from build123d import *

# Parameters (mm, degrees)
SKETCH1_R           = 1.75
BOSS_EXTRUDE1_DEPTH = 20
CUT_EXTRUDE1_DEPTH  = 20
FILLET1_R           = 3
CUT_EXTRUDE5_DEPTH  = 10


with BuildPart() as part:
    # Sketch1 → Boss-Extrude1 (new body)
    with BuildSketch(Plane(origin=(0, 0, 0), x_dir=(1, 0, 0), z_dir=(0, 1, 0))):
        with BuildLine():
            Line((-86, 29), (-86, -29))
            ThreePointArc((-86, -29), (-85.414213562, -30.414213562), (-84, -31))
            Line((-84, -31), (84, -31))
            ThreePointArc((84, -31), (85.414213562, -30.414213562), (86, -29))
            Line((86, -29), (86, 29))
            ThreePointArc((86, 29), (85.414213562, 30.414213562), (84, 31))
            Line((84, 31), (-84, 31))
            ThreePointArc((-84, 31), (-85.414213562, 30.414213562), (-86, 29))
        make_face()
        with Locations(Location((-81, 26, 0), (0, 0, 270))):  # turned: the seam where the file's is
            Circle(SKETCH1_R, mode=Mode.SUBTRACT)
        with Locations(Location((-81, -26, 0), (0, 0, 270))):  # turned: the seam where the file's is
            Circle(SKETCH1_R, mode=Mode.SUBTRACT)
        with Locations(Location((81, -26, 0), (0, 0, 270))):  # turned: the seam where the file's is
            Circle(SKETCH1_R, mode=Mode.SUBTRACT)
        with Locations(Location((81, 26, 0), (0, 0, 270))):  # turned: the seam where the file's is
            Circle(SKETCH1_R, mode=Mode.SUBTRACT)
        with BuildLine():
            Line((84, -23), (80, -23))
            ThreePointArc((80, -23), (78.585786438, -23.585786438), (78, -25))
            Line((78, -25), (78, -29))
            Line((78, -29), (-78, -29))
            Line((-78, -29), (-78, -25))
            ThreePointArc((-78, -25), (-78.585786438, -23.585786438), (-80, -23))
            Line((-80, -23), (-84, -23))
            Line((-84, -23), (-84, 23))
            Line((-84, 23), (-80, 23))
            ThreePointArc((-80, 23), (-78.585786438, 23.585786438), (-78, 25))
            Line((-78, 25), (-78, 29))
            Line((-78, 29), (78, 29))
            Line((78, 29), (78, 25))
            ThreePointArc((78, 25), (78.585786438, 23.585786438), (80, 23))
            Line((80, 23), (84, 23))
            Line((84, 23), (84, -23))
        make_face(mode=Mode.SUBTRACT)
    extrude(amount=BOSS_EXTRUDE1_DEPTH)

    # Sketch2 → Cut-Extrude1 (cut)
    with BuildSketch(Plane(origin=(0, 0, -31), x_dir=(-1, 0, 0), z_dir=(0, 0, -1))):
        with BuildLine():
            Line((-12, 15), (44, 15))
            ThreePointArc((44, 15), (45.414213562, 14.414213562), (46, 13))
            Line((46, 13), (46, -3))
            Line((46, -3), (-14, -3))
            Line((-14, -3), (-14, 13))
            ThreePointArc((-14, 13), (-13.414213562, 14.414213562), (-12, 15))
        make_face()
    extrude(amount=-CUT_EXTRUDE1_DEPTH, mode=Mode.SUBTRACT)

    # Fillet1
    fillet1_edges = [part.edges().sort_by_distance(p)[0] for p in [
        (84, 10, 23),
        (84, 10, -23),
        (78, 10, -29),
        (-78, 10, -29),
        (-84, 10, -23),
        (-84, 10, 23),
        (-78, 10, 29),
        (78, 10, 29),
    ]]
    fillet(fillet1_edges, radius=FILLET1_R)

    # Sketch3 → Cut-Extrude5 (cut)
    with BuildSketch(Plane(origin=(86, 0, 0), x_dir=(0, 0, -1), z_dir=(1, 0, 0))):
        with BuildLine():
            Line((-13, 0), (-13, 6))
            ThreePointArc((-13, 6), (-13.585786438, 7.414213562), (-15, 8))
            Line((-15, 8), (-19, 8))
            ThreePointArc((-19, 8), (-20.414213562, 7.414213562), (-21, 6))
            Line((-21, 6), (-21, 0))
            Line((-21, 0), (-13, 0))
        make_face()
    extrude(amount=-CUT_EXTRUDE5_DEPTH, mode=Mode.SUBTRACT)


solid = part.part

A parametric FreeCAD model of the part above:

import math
import FreeCAD as App
import Part
import Sketcher

V = App.Vector


def edges_at(feature, points):
    """Names of the edges that pass closest to the given points."""
    edges = feature.Shape.Edges
    near = lambda p: min(range(len(edges)), key=lambda i: edges[i].distToShape(Part.Vertex(*p))[0])
    return sorted({f"Edge{near(p) + 1}" for p in points})

doc = App.newDocument("Part")
body = doc.addObject("PartDesign::Body", "Body")

sketch1 = body.newObject("Sketcher::SketchObject", "Sketch")
sketch1.AttachmentSupport = (doc.getObject("XZ_Plane"), [""])
sketch1.MapMode = "FlatFace"
sketch1.addGeometry([
    Part.LineSegment(V(-86, -29, 0), V(-86, 29, 0)),
    Part.ArcOfCircle(Part.Circle(V(-84, 29, 0), V(0, 0, 1), 2), math.radians(90), math.radians(180)),
    Part.LineSegment(V(-84, 31, 0), V(84, 31, 0)),
    Part.ArcOfCircle(Part.Circle(V(84, 29, 0), V(0, 0, 1), 2), math.radians(0), math.radians(90)),
    Part.LineSegment(V(86, 29, 0), V(86, -29, 0)),
    Part.ArcOfCircle(Part.Circle(V(84, -29, 0), V(0, 0, 1), 2), math.radians(-90), math.radians(0)),
    Part.LineSegment(V(84, -31, 0), V(-84, -31, 0)),
    Part.ArcOfCircle(Part.Circle(V(-84, -29, 0), V(0, 0, 1), 2), math.radians(-180), math.radians(-90)),
    Part.Circle(V(-81, 26, 0), V(0, 0, 1), 1.8),
    Part.Circle(V(81, 26, 0), V(0, 0, 1), 1.8),
    Part.Circle(V(-81, -26, 0), V(0, 0, 1), 1.8),
    Part.LineSegment(V(84, -23, 0), V(84, 23, 0)),
    Part.LineSegment(V(84, 23, 0), V(80, 23, 0)),
    Part.ArcOfCircle(Part.Circle(V(80, 25, 0), V(0, 0, 1), 2), math.radians(-180), math.radians(-90)),
    Part.LineSegment(V(78, 25, 0), V(78, 29, 0)),
    Part.LineSegment(V(78, 29, 0), V(-78, 29, 0)),
    Part.LineSegment(V(-78, 29, 0), V(-78, 25, 0)),
    Part.ArcOfCircle(Part.Circle(V(-80, 25, 0), V(0, 0, 1), 2), math.radians(-90), math.radians(0)),
    Part.LineSegment(V(-80, 23, 0), V(-84, 23, 0)),
    Part.LineSegment(V(-84, 23, 0), V(-84, -23, 0)),
    Part.LineSegment(V(-84, -23, 0), V(-80, -23, 0)),
    Part.ArcOfCircle(Part.Circle(V(-80, -25, 0), V(0, 0, 1), 2), math.radians(0), math.radians(90)),
    Part.LineSegment(V(-78, -25, 0), V(-78, -29, 0)),
    Part.LineSegment(V(-78, -29, 0), V(78, -29, 0)),
    Part.LineSegment(V(78, -29, 0), V(78, -25, 0)),
    Part.ArcOfCircle(Part.Circle(V(80, -25, 0), V(0, 0, 1), 2), math.radians(90), math.radians(180)),
    Part.LineSegment(V(80, -23, 0), V(84, -23, 0)),
    Part.Circle(V(81, -26, 0), V(0, 0, 1), 1.8),
], False)
sketch1.addConstraint([
    Sketcher.Constraint("Tangent", 0, 2, 1, 2),
    Sketcher.Constraint("Tangent", 1, 1, 2, 1),
    Sketcher.Constraint("Tangent", 2, 2, 3, 2),
    Sketcher.Constraint("Tangent", 3, 1, 4, 1),
    Sketcher.Constraint("Tangent", 4, 2, 5, 2),
    Sketcher.Constraint("Tangent", 5, 1, 6, 1),
    Sketcher.Constraint("Tangent", 6, 2, 7, 2),
    Sketcher.Constraint("Tangent", 7, 1, 0, 1),
    Sketcher.Constraint("Coincident", 11, 2, 12, 1),
    Sketcher.Constraint("Tangent", 12, 2, 13, 2),
    Sketcher.Constraint("Tangent", 13, 1, 14, 1),
    Sketcher.Constraint("Coincident", 14, 2, 15, 1),
    Sketcher.Constraint("Coincident", 15, 2, 16, 1),
    Sketcher.Constraint("Tangent", 16, 2, 17, 2),
    Sketcher.Constraint("Tangent", 17, 1, 18, 1),
    Sketcher.Constraint("Coincident", 18, 2, 19, 1),
    Sketcher.Constraint("Coincident", 19, 2, 20, 1),
    Sketcher.Constraint("Tangent", 20, 2, 21, 2),
    Sketcher.Constraint("Tangent", 21, 1, 22, 1),
    Sketcher.Constraint("Coincident", 22, 2, 23, 1),
    Sketcher.Constraint("Coincident", 23, 2, 24, 1),
    Sketcher.Constraint("Tangent", 24, 2, 25, 2),
    Sketcher.Constraint("Tangent", 25, 1, 26, 1),
    Sketcher.Constraint("Coincident", 26, 2, 11, 1),
    Sketcher.Constraint("Vertical", 0),
    Sketcher.Constraint("Horizontal", 2),
    Sketcher.Constraint("Vertical", 4),
    Sketcher.Constraint("Horizontal", 6),
    Sketcher.Constraint("Vertical", 11),
    Sketcher.Constraint("Horizontal", 12),
    Sketcher.Constraint("Vertical", 14),
    Sketcher.Constraint("Horizontal", 15),
    Sketcher.Constraint("Vertical", 16),
    Sketcher.Constraint("Horizontal", 18),
    Sketcher.Constraint("Vertical", 19),
    Sketcher.Constraint("Horizontal", 20),
    Sketcher.Constraint("Vertical", 22),
    Sketcher.Constraint("Horizontal", 23),
    Sketcher.Constraint("Vertical", 24),
    Sketcher.Constraint("Horizontal", 26),
    Sketcher.Constraint("Equal", 1, 3),
    Sketcher.Constraint("Equal", 3, 5),
    Sketcher.Constraint("Equal", 5, 7),
    Sketcher.Constraint("Equal", 8, 9),
    Sketcher.Constraint("Equal", 9, 10),
    Sketcher.Constraint("Equal", 7, 13),
    Sketcher.Constraint("Equal", 13, 17),
    Sketcher.Constraint("Equal", 17, 21),
    Sketcher.Constraint("Equal", 21, 25),
    Sketcher.Constraint("Equal", 10, 27),
    Sketcher.Constraint("Symmetric", 1, 3, 5, 3, -1, 1),
    Sketcher.Constraint("Symmetric", 9, 3, 10, 3, -1, 1),
    Sketcher.Constraint("Symmetric", 13, 3, 21, 3, -1, 1),
    Sketcher.Constraint("Symmetric", 17, 3, 25, 3, -1, 1),
    Sketcher.Constraint("Symmetric", 8, 3, 27, 3, -1, 1),
    Sketcher.Constraint("Symmetric", 8, 3, 9, 3, -2),
    Sketcher.Constraint("Symmetric", 13, 3, 17, 3, -2),
    Sketcher.Constraint("Horizontal", 3, 1, 14, 2),
    Sketcher.Constraint("Horizontal", 7, 1, 22, 2),
    Sketcher.Constraint("Vertical", 5, 1, 11, 2),
    Sketcher.Constraint("Vertical", 6, 2, 18, 2),
    Sketcher.Constraint("Equal", 26, 14),
    Sketcher.Constraint("Radius", 1, 2.0),
    Sketcher.Constraint("Diameter", 8, 3.5),
    Sketcher.Constraint("DistanceX", 2, 1, 2, 2, 168.0),
    Sketcher.Constraint("DistanceX", 12, 2, 12, 1, 4.0),
    Sketcher.Constraint("DistanceY", 0, 1, 0, 2, 58.0),
    Sketcher.Constraint("DistanceX", 8, 3, -1, 1, 81.0),
    Sketcher.Constraint("DistanceY", -1, 1, 8, 3, 26.0),
])
pad1 = body.newObject("PartDesign::Pad", "Pad")
pad1.Profile = sketch1
pad1.Length = 20
pad1.Reversed = True

sketch2 = body.newObject("Sketcher::SketchObject", "Sketch001")
sketch2.AttachmentSupport = (doc.getObject("XY_Plane"), [""])
sketch2.MapMode = "FlatFace"
sketch2.AttachmentOffset = App.Placement(V(0, 0, -31), App.Rotation())
sketch2.addGeometry([
    Part.LineSegment(V(-44, 15, 0), V(12, 15, 0)),
    Part.ArcOfCircle(Part.Circle(V(12, 13, 0), V(0, 0, 1), 2), math.radians(0), math.radians(90)),
    Part.LineSegment(V(14, 13, 0), V(14, -3, 0)),
    Part.LineSegment(V(14, -3, 0), V(-46, -3, 0)),
    Part.LineSegment(V(-46, -3, 0), V(-46, 13, 0)),
    Part.ArcOfCircle(Part.Circle(V(-44, 13, 0), V(0, 0, 1), 2), math.radians(90), math.radians(180)),
], False)
sketch2.addConstraint([
    Sketcher.Constraint("Tangent", 0, 2, 1, 2),
    Sketcher.Constraint("Tangent", 1, 1, 2, 1),
    Sketcher.Constraint("Coincident", 2, 2, 3, 1),
    Sketcher.Constraint("Coincident", 3, 2, 4, 1),
    Sketcher.Constraint("Tangent", 4, 2, 5, 2),
    Sketcher.Constraint("Tangent", 5, 1, 0, 1),
    Sketcher.Constraint("Horizontal", 0),
    Sketcher.Constraint("Vertical", 2),
    Sketcher.Constraint("Horizontal", 3),
    Sketcher.Constraint("Vertical", 4),
    Sketcher.Constraint("Equal", 1, 5),
    Sketcher.Constraint("Radius", 1, 2.0),
    Sketcher.Constraint("DistanceX", 0, 1, 0, 2, 56.0),
    Sketcher.Constraint("DistanceY", 2, 2, 2, 1, 16.0),
    Sketcher.Constraint("DistanceX", -1, 1, 1, 3, 12.0),
    Sketcher.Constraint("DistanceY", -1, 1, 1, 3, 13.0),
])
pocket1 = body.newObject("PartDesign::Pocket", "Pocket")
pocket1.Profile = sketch2
pocket1.Length = 20
pocket1.Reversed = True
doc.recompute()

fillet = body.newObject("PartDesign::Fillet", "Fillet")
fillet.Base = (pocket1, edges_at(pocket1, [
    (84, 10, 23),
    (84, 10, -23),
    (78, 10, -29),
    (-78, 10, -29),
    (-84, 10, -23),
    (-84, 10, 23),
    (-78, 10, 29),
    (78, 10, 29),
]))
fillet.Radius = 3

sketch3 = body.newObject("Sketcher::SketchObject", "Sketch002")
sketch3.AttachmentSupport = (doc.getObject("YZ_Plane"), [""])
sketch3.MapMode = "FlatFace"
sketch3.AttachmentOffset = App.Placement(V(0, 0, 86), App.Rotation())
sketch3.addGeometry([
    Part.LineSegment(V(0, 13, 0), V(6, 13, 0)),
    Part.ArcOfCircle(Part.Circle(V(6, 15, 0), V(0, 0, 1), 2), math.radians(-90), math.radians(0)),
    Part.LineSegment(V(8, 15, 0), V(8, 19, 0)),
    Part.ArcOfCircle(Part.Circle(V(6, 19, 0), V(0, 0, 1), 2), math.radians(0), math.radians(90)),
    Part.LineSegment(V(6, 21, 0), V(0, 21, 0)),
    Part.LineSegment(V(0, 21, 0), V(0, 13, 0)),
], False)
sketch3.addConstraint([
    Sketcher.Constraint("Tangent", 0, 2, 1, 1),
    Sketcher.Constraint("Tangent", 1, 2, 2, 1),
    Sketcher.Constraint("Tangent", 2, 2, 3, 1),
    Sketcher.Constraint("Tangent", 3, 2, 4, 1),
    Sketcher.Constraint("Coincident", 4, 2, 5, 1),
    Sketcher.Constraint("Coincident", 5, 2, 0, 1),
    Sketcher.Constraint("Horizontal", 0),
    Sketcher.Constraint("Vertical", 2),
    Sketcher.Constraint("Horizontal", 4),
    Sketcher.Constraint("Vertical", 5),
    Sketcher.Constraint("Equal", 1, 3),
    Sketcher.Constraint("PointOnObject", 4, 2, -2),
    Sketcher.Constraint("Radius", 1, 2.0),
    Sketcher.Constraint("DistanceX", 0, 1, 0, 2, 6.0),
    Sketcher.Constraint("DistanceY", 2, 1, 2, 2, 4.0),
    Sketcher.Constraint("DistanceY", -1, 1, 1, 3, 15.0),
])
pocket2 = body.newObject("PartDesign::Pocket", "Pocket001")
pocket2.Profile = sketch3
pocket2.Length = 10

doc.recompute()
